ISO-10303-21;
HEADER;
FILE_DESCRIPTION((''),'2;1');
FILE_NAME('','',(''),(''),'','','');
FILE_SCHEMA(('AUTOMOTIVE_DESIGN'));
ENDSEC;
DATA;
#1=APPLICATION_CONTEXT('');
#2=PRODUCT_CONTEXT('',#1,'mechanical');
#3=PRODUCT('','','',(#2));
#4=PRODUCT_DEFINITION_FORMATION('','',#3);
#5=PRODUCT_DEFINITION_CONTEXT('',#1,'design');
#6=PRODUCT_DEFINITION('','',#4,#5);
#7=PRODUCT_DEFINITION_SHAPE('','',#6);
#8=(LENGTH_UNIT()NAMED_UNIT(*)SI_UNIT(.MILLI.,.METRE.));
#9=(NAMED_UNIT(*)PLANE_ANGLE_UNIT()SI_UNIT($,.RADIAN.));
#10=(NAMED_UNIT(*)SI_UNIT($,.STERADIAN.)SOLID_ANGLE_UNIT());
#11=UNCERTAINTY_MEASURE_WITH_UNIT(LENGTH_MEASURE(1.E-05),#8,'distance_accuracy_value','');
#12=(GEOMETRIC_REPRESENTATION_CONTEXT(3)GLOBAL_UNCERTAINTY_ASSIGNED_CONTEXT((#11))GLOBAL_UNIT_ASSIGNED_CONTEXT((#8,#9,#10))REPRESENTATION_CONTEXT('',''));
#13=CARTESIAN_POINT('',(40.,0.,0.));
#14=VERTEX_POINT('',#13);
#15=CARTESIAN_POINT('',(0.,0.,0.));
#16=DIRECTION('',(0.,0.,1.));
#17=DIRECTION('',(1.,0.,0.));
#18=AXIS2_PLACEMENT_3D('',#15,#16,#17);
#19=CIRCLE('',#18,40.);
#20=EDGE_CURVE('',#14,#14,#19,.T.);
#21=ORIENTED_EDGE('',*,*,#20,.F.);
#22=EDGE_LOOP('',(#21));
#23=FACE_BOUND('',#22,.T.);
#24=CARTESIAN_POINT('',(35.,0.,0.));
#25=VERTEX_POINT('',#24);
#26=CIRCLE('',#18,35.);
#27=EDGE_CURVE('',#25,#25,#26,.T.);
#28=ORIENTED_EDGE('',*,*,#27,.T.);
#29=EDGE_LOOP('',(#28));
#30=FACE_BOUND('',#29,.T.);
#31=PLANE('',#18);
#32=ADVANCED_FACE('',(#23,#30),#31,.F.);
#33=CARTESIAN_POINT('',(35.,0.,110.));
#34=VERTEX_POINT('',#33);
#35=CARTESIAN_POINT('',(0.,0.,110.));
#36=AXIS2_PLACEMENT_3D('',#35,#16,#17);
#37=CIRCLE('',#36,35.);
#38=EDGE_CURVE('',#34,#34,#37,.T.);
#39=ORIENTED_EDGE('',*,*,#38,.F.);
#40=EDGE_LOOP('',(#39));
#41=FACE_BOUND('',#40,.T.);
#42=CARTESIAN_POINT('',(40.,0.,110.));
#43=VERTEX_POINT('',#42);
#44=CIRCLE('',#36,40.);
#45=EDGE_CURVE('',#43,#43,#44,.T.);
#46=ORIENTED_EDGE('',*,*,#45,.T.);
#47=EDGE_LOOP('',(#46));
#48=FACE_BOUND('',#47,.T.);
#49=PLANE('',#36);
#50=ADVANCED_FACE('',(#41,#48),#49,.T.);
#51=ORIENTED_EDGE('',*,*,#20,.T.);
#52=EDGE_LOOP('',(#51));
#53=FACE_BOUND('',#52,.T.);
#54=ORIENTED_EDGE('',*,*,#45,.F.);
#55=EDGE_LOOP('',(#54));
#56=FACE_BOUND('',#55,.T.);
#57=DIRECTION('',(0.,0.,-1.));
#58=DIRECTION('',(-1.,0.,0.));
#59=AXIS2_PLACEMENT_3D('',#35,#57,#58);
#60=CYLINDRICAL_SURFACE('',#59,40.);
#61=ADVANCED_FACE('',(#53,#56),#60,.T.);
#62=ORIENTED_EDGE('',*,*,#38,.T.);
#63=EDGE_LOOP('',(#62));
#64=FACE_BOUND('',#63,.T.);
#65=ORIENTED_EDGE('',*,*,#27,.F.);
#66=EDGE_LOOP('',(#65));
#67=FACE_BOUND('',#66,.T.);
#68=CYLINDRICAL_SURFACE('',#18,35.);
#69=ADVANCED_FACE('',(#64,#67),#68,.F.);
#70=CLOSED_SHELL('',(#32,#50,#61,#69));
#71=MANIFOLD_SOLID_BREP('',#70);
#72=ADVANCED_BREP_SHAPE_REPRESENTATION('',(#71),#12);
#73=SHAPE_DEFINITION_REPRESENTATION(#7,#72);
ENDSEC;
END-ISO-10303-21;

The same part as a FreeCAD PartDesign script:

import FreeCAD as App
import Part
import Sketcher

doc = App.newDocument("Part")
params = doc.addObject("Spreadsheet::Sheet", "Params")
for row, (alias, value) in enumerate([
    ("sketch1_diameter", "80 mm"),
    ("pad1_length", "110 mm"),
    ("sketch2_diameter", "70 mm"),
    ("pocket1_length", "110 mm"),
], start=1):
    params.set(f"A{row}", alias)
    params.set(f"B{row}", "=" + value)
    params.setAlias(f"B{row}", alias)

body = doc.addObject("PartDesign::Body", "Body")

sketch1 = body.newObject("Sketcher::SketchObject", "Sketch")
sketch1.AttachmentSupport = (doc.getObject("XY_Plane"), [""])
sketch1.MapMode = "FlatFace"
sketch1.addGeometry(Part.Circle(App.Vector(0, 0, 0), App.Vector(0, 0, 1), 40), False)
sketch1.addConstraint(Sketcher.Constraint("Coincident", 0, 3, -1, 1))
sketch1.addConstraint(Sketcher.Constraint("Diameter", 0, 80.0))
sketch1.setExpression("Constraints[1]", "Params.sketch1_diameter")
pad1 = body.newObject("PartDesign::Pad", "Pad")
pad1.Profile = sketch1
pad1.setExpression("Length", "Params.pad1_length")

sketch2 = body.newObject("Sketcher::SketchObject", "Sketch001")
sketch2.AttachmentSupport = (doc.getObject("XY_Plane"), [""])
sketch2.MapMode = "FlatFace"
sketch2.AttachmentOffset = App.Placement(App.Vector(0, 0, 110), App.Rotation())
sketch2.addGeometry(Part.Circle(App.Vector(0, 0, 0), App.Vector(0, 0, 1), 35), False)
sketch2.addConstraint(Sketcher.Constraint("Coincident", 0, 3, -1, 1))
sketch2.addConstraint(Sketcher.Constraint("Diameter", 0, 70.0))
sketch2.setExpression("Constraints[1]", "Params.sketch2_diameter")
pocket1 = body.newObject("PartDesign::Pocket", "Pocket")
pocket1.Profile = sketch2
pocket1.setExpression("Length", "Params.pocket1_length")

doc.recompute()
